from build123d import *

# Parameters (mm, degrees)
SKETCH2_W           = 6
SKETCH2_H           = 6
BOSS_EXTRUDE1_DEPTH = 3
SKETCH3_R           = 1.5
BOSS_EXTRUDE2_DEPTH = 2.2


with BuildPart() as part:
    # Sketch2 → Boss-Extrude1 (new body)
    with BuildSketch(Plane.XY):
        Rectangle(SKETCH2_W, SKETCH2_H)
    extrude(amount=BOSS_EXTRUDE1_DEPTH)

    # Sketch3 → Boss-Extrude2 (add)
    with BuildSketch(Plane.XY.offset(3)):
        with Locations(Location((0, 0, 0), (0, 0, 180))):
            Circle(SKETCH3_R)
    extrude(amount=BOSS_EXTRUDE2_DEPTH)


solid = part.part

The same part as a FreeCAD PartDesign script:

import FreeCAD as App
import Part
import Sketcher

V = App.Vector


def add_polygon(sketch, points):
    """Adds a closed chain of lines whose ends are joined by coincident constraints."""
    first, n = sketch.GeometryCount, len(points)
    for a, b in zip(points, points[1:] + points[:1]):
        sketch.addGeometry(Part.LineSegment(App.Vector(*a, 0), App.Vector(*b, 0)), False)
    for i in range(n):
        sketch.addConstraint(Sketcher.Constraint("Coincident", first + i, 2, first + (i + 1) % n, 1))

doc = App.newDocument("Part")
body = doc.addObject("PartDesign::Body", "Body")

sketch1 = body.newObject("Sketcher::SketchObject", "Sketch")
sketch1.AttachmentSupport = (doc.getObject("XY_Plane"), [""])
sketch1.MapMode = "FlatFace"
add_polygon(sketch1, [(-3, 3), (-3, -3), (3, -3), (3, 3)])
sketch1.addConstraint([
    Sketcher.Constraint("Vertical", 0),
    Sketcher.Constraint("Horizontal", 1),
    Sketcher.Constraint("Vertical", 2),
    Sketcher.Constraint("Horizontal", 3),
    Sketcher.Constraint("Symmetric", 0, 2, 2, 2, -1, 1),
    Sketcher.Constraint("Equal", 3, 0),
    Sketcher.Constraint("DistanceX", 1, 1, 1, 2, 6.0),
])
pad1 = body.newObject("PartDesign::Pad", "Pad")
pad1.Profile = sketch1
pad1.Length = 3

sketch2 = body.newObject("Sketcher::SketchObject", "Sketch001")
sketch2.AttachmentSupport = (doc.getObject("XY_Plane"), [""])
sketch2.MapMode = "FlatFace"
sketch2.AttachmentOffset = App.Placement(V(0, 0, 3), App.Rotation())
sketch2.addGeometry(Part.Circle(V(0, 0, 0), V(0, 0, 1), 1.5), False)
sketch2.addConstraint([
    Sketcher.Constraint("Coincident", 0, 3, -1, 1),
    Sketcher.Constraint("Diameter", 0, 3.0),
])
pad2 = body.newObject("PartDesign::Pad", "Pad001")
pad2.Profile = sketch2
pad2.Length = 2.2

doc.recompute()
